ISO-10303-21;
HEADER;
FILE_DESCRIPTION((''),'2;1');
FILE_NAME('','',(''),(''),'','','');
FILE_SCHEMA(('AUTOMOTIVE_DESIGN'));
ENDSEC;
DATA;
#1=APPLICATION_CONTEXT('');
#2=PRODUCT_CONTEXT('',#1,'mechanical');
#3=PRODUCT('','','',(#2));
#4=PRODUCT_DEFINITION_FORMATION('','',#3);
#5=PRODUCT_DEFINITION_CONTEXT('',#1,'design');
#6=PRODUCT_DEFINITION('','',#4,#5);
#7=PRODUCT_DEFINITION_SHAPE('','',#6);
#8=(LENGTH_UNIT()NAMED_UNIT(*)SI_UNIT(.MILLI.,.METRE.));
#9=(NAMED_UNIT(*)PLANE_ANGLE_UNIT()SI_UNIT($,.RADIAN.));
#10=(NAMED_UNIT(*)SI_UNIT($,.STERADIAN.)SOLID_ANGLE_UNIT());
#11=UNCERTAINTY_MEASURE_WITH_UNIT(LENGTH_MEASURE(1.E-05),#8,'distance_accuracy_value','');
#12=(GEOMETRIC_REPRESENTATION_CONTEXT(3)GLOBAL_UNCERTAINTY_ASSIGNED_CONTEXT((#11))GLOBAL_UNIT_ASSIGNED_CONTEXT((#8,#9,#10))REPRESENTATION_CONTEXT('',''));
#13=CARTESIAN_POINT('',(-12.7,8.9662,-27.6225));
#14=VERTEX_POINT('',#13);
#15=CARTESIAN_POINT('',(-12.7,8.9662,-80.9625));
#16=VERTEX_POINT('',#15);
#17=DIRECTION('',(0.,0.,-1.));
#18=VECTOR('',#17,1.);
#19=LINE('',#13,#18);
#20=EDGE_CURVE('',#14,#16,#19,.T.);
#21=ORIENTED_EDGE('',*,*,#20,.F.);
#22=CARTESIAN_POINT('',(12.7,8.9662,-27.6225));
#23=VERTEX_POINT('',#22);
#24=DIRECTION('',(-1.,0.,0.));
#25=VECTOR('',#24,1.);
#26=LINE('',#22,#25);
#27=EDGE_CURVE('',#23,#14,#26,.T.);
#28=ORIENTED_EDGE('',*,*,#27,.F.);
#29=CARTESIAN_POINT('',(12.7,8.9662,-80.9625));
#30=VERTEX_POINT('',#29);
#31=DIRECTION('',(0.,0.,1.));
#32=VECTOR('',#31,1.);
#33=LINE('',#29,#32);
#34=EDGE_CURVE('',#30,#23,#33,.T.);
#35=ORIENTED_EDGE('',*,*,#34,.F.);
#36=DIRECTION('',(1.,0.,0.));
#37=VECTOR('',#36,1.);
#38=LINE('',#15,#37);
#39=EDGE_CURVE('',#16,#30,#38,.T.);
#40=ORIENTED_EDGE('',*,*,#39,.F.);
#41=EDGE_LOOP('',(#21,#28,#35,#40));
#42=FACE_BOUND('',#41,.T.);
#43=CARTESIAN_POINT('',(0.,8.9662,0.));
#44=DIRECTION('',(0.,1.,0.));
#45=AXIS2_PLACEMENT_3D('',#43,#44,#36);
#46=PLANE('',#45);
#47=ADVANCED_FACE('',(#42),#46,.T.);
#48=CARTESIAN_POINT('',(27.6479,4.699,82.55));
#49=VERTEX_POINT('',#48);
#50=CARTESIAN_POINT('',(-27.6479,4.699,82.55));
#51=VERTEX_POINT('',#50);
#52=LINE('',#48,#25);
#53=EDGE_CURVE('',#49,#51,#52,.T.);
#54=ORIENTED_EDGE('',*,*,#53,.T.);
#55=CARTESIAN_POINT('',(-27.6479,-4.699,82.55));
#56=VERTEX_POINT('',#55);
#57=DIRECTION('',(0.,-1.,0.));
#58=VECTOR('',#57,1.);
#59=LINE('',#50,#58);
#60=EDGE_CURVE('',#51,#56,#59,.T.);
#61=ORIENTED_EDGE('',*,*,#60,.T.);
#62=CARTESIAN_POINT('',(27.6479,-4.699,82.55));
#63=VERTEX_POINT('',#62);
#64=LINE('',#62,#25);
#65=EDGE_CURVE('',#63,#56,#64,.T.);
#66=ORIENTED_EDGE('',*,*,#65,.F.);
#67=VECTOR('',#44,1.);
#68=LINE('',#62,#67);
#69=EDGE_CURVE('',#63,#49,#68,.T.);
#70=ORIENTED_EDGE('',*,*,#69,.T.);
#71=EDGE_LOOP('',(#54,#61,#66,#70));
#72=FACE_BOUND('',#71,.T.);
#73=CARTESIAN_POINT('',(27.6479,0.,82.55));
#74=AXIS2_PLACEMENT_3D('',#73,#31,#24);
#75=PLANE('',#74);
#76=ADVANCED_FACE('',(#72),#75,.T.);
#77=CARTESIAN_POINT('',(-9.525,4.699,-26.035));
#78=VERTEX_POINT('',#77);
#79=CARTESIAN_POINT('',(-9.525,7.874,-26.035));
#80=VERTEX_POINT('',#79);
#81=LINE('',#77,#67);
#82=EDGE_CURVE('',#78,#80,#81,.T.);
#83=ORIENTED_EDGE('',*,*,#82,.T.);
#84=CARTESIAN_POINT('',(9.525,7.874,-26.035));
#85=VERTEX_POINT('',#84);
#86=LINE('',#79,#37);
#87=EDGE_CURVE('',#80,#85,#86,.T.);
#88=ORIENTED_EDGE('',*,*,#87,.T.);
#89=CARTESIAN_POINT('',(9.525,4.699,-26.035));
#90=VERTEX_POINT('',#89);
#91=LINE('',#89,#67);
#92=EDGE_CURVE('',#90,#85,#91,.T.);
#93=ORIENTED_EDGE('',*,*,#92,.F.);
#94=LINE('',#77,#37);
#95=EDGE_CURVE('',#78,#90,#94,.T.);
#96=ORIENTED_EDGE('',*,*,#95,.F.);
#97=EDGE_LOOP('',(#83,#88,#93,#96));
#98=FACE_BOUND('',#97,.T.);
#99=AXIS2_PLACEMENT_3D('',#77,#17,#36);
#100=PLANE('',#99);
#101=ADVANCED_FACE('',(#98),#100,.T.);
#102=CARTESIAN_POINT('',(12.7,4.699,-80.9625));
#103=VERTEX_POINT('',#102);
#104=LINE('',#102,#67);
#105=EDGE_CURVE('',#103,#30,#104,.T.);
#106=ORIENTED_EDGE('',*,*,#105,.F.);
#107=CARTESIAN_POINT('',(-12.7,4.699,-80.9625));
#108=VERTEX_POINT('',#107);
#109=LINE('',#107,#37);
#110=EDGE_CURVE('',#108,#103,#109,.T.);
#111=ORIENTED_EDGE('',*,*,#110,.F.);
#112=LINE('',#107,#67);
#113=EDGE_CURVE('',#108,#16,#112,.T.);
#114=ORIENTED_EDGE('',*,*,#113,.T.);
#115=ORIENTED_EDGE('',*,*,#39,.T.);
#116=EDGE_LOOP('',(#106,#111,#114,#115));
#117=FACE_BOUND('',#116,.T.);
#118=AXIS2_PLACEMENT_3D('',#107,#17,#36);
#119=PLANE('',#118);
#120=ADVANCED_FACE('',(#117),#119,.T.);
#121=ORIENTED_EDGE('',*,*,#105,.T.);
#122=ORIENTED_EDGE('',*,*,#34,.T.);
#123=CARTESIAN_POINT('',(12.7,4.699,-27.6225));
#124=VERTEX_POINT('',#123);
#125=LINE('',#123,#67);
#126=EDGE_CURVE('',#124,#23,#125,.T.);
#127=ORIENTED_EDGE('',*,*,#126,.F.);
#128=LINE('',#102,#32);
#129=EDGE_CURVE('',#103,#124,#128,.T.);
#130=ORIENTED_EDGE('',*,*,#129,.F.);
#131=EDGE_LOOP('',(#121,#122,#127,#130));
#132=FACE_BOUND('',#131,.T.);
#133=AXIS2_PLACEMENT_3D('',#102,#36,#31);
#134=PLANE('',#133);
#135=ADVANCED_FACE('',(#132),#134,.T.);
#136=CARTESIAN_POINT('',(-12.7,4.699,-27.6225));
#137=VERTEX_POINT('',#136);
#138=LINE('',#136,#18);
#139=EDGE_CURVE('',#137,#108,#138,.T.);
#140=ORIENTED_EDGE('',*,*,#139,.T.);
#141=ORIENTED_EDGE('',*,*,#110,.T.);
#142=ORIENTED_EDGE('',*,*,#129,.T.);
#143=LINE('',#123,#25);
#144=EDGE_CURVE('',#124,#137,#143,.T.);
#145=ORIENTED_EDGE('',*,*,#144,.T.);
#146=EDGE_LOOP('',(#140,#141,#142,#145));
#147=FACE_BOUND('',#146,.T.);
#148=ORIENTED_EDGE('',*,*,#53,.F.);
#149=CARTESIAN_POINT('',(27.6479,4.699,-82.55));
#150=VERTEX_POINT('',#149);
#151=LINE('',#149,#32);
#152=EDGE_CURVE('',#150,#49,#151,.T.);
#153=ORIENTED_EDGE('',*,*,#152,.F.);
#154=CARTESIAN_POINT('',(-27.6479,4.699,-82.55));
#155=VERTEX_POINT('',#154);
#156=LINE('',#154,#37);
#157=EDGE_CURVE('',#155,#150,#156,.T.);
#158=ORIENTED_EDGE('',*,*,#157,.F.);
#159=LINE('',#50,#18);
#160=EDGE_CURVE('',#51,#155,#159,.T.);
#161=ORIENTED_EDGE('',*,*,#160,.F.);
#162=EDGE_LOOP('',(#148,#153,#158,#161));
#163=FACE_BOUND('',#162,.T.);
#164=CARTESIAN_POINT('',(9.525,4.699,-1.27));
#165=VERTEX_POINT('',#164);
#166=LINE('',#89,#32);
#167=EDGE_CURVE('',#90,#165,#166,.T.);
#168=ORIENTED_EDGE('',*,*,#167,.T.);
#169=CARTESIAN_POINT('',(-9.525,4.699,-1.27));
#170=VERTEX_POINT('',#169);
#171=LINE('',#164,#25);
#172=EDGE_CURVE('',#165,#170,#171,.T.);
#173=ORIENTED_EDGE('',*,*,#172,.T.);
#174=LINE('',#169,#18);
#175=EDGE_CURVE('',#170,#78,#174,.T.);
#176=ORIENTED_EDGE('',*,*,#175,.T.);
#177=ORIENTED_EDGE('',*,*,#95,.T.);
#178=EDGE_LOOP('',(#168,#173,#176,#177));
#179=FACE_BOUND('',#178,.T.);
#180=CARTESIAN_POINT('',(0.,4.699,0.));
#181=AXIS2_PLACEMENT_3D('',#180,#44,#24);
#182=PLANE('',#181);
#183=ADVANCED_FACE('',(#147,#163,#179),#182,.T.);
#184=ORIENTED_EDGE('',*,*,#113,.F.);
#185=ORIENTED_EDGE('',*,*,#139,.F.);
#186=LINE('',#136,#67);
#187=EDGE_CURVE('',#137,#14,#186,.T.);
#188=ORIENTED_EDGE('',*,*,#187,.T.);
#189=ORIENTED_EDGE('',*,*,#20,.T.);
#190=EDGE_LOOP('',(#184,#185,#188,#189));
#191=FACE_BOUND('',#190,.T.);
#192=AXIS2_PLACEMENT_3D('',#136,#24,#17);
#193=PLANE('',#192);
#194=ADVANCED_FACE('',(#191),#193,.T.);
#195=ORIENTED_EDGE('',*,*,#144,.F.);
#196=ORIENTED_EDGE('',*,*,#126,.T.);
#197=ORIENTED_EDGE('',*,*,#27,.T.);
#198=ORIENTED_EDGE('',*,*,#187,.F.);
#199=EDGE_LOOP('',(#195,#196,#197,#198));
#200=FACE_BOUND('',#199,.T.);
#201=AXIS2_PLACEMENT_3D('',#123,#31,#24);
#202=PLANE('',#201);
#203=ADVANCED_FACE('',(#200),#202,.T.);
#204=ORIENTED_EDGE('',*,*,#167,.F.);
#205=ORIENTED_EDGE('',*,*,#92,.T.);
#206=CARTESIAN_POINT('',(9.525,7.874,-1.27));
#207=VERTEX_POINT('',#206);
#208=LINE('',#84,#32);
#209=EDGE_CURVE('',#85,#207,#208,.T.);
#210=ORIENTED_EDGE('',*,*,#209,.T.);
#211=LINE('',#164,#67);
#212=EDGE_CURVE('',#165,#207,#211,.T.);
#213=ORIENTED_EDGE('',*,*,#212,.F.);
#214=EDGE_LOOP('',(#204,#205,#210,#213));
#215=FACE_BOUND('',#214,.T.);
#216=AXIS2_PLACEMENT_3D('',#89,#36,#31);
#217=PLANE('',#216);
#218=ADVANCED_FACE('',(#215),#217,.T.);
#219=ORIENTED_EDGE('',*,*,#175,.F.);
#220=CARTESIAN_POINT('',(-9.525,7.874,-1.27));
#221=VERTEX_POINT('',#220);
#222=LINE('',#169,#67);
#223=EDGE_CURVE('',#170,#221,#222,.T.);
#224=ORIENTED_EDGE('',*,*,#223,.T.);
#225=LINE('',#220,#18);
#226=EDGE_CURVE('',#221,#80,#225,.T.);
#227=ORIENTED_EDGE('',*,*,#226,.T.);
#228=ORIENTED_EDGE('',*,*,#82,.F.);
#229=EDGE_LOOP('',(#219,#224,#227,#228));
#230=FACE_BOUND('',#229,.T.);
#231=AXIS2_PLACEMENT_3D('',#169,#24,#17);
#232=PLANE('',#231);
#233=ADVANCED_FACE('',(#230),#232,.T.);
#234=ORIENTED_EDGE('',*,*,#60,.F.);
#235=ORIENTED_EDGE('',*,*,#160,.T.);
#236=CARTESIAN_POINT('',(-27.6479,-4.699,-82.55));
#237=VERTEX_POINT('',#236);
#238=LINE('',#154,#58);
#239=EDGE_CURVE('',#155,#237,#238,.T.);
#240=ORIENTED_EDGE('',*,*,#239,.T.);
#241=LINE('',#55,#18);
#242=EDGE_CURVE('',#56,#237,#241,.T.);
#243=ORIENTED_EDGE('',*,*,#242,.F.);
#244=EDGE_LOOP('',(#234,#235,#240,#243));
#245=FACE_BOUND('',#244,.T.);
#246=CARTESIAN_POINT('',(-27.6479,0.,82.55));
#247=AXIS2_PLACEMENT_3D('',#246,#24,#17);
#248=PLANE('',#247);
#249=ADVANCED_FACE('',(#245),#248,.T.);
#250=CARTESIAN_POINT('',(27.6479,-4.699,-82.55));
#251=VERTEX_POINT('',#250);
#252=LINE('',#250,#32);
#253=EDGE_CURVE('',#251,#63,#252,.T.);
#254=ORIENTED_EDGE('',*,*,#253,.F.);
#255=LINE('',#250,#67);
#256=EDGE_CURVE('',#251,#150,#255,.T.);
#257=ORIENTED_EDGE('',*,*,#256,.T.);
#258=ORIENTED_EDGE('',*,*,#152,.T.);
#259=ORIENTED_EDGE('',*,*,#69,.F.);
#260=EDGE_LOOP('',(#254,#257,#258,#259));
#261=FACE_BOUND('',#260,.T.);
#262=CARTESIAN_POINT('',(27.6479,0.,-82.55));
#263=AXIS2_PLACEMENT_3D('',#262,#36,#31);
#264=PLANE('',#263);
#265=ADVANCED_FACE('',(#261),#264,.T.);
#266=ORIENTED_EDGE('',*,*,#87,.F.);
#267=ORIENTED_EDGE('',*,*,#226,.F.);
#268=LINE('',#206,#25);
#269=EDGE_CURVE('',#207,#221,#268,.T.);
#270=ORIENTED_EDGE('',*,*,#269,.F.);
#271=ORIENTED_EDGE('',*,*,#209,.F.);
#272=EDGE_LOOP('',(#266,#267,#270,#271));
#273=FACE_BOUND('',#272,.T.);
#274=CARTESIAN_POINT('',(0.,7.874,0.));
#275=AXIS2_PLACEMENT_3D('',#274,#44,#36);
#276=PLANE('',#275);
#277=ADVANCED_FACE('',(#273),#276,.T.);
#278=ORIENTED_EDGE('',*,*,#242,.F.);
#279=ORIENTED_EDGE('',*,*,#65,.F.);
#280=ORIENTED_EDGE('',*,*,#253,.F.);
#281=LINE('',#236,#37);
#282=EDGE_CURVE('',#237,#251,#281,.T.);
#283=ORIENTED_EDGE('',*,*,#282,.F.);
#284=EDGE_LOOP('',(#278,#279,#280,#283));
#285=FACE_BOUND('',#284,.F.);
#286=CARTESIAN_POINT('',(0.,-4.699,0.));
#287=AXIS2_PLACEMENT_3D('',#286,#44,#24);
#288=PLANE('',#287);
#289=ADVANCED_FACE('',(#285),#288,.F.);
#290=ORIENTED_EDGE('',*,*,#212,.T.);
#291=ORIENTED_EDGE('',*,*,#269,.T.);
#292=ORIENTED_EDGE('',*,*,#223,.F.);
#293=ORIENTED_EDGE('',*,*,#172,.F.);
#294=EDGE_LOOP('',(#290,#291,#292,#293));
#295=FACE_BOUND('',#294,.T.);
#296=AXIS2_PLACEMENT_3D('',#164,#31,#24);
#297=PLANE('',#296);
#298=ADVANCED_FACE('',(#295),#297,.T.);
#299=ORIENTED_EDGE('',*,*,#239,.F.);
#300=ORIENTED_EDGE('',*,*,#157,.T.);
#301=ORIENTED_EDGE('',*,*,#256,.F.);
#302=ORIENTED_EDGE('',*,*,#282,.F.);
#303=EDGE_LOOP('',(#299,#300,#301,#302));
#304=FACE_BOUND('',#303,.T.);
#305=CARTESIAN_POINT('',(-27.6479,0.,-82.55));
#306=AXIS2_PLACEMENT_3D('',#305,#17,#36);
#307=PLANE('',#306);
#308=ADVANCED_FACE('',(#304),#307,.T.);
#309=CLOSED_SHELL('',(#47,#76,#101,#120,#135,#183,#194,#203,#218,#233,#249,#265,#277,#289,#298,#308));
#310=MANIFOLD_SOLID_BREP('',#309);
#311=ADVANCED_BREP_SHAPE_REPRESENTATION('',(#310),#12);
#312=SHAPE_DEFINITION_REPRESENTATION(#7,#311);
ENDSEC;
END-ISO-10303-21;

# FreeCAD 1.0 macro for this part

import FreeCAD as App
import Part
import Sketcher
Q = App.Units.Quantity


def add_polygon(sketch, points):
    """Adds a closed chain of lines whose ends are joined by coincident constraints."""
    first, n = sketch.GeometryCount, len(points)
    for a, b in zip(points, points[1:] + points[:1]):
        sketch.addGeometry(Part.LineSegment(App.Vector(*a, 0), App.Vector(*b, 0)), False)
    for i in range(n):
        sketch.addConstraint(Sketcher.Constraint("Coincident", first + i, 2, first + (i + 1) % n, 1))

doc = App.newDocument("Part")
body = doc.addObject("PartDesign::Body", "Body")

sketch1 = doc.addObject("Sketcher::SketchObject", "Sketch")
body.addObject(sketch1)
sketch1.AttachmentSupport = (doc.XZ_Plane, [""])
sketch1.MapMode = "FlatFace"
add_polygon(sketch1, [(-28, 83), (28, 83), (28, -83), (-28, -83)])
sketch1.addConstraint(Sketcher.Constraint("Horizontal", 0))
sketch1.addConstraint(Sketcher.Constraint("Vertical", 1))
sketch1.addConstraint(Sketcher.Constraint("Horizontal", 2))
sketch1.addConstraint(Sketcher.Constraint("Vertical", 3))
sketch1.addConstraint(Sketcher.Constraint("Symmetric", 0, 2, 2, 2, -1, 1))
sketch1.addConstraint(Sketcher.Constraint("DistanceY", 1, 2, 1, 1, Q("6.5 in")))
sketch1.addConstraint(Sketcher.Constraint("DistanceX", 0, 1, 0, 2, Q("2.177 in")))
pad1 = doc.addObject("PartDesign::Pad", "Pad")
body.addObject(pad1)
pad1.Profile = sketch1
pad1.Length = Q("0.37 in")
pad1.Midplane = True

sketch2 = doc.addObject("Sketcher::SketchObject", "Sketch001")
body.addObject(sketch2)
sketch2.AttachmentSupport = (doc.XZ_Plane, [""])
sketch2.MapMode = "FlatFace"
sketch2.AttachmentOffset = App.Placement(App.Vector(0, 0, -0.185 * 25.4), App.Rotation())
add_polygon(sketch2, [(-13, -28), (13, -28), (13, -81), (-13, -81)])
sketch2.addConstraint(Sketcher.Constraint("Horizontal", 0))
sketch2.addConstraint(Sketcher.Constraint("Vertical", 1))
sketch2.addConstraint(Sketcher.Constraint("Horizontal", 2))
sketch2.addConstraint(Sketcher.Constraint("Vertical", 3))
sketch2.addConstraint(Sketcher.Constraint("DistanceX", 0, 1, 0, 2, Q("1 in")))
sketch2.addConstraint(Sketcher.Constraint("DistanceY", 1, 2, 1, 1, Q("2.1 in")))
sketch2.addConstraint(Sketcher.Constraint("DistanceX", -1, 1, 0, 2, Q("0.5 in")))
sketch2.addConstraint(Sketcher.Constraint("DistanceY", 1, 2, -1, 1, Q("3.1875 in")))
pad2 = doc.addObject("PartDesign::Pad", "Pad001")
body.addObject(pad2)
pad2.Profile = sketch2
pad2.Length = Q("0.168 in")
pad2.Reversed = True

sketch3 = doc.addObject("Sketcher::SketchObject", "Sketch002")
body.addObject(sketch3)
sketch3.AttachmentSupport = (doc.XZ_Plane, [""])
sketch3.MapMode = "FlatFace"
sketch3.AttachmentOffset = App.Placement(App.Vector(0, 0, -0.185 * 25.4), App.Rotation())
add_polygon(sketch3, [(-10, -1), (10, -1), (10, -26), (-10, -26)])
sketch3.addConstraint(Sketcher.Constraint("Horizontal", 0))
sketch3.addConstraint(Sketcher.Constraint("Vertical", 1))
sketch3.addConstraint(Sketcher.Constraint("Horizontal", 2))
sketch3.addConstraint(Sketcher.Constraint("Vertical", 3))
sketch3.addConstraint(Sketcher.Constraint("DistanceX", 0, 1, 0, 2, Q("0.75 in")))
sketch3.addConstraint(Sketcher.Constraint("DistanceY", 1, 2, 1, 1, Q("0.975 in")))
sketch3.addConstraint(Sketcher.Constraint("DistanceY", 0, 2, -1, 1, Q("0.05 in")))
sketch3.addConstraint(Sketcher.Constraint("DistanceX", -1, 1, 0, 2, Q("0.375 in")))
pad3 = doc.addObject("PartDesign::Pad", "Pad002")
body.addObject(pad3)
pad3.Profile = sketch3
pad3.Length = Q("0.125 in")
pad3.Reversed = True

doc.recompute()
